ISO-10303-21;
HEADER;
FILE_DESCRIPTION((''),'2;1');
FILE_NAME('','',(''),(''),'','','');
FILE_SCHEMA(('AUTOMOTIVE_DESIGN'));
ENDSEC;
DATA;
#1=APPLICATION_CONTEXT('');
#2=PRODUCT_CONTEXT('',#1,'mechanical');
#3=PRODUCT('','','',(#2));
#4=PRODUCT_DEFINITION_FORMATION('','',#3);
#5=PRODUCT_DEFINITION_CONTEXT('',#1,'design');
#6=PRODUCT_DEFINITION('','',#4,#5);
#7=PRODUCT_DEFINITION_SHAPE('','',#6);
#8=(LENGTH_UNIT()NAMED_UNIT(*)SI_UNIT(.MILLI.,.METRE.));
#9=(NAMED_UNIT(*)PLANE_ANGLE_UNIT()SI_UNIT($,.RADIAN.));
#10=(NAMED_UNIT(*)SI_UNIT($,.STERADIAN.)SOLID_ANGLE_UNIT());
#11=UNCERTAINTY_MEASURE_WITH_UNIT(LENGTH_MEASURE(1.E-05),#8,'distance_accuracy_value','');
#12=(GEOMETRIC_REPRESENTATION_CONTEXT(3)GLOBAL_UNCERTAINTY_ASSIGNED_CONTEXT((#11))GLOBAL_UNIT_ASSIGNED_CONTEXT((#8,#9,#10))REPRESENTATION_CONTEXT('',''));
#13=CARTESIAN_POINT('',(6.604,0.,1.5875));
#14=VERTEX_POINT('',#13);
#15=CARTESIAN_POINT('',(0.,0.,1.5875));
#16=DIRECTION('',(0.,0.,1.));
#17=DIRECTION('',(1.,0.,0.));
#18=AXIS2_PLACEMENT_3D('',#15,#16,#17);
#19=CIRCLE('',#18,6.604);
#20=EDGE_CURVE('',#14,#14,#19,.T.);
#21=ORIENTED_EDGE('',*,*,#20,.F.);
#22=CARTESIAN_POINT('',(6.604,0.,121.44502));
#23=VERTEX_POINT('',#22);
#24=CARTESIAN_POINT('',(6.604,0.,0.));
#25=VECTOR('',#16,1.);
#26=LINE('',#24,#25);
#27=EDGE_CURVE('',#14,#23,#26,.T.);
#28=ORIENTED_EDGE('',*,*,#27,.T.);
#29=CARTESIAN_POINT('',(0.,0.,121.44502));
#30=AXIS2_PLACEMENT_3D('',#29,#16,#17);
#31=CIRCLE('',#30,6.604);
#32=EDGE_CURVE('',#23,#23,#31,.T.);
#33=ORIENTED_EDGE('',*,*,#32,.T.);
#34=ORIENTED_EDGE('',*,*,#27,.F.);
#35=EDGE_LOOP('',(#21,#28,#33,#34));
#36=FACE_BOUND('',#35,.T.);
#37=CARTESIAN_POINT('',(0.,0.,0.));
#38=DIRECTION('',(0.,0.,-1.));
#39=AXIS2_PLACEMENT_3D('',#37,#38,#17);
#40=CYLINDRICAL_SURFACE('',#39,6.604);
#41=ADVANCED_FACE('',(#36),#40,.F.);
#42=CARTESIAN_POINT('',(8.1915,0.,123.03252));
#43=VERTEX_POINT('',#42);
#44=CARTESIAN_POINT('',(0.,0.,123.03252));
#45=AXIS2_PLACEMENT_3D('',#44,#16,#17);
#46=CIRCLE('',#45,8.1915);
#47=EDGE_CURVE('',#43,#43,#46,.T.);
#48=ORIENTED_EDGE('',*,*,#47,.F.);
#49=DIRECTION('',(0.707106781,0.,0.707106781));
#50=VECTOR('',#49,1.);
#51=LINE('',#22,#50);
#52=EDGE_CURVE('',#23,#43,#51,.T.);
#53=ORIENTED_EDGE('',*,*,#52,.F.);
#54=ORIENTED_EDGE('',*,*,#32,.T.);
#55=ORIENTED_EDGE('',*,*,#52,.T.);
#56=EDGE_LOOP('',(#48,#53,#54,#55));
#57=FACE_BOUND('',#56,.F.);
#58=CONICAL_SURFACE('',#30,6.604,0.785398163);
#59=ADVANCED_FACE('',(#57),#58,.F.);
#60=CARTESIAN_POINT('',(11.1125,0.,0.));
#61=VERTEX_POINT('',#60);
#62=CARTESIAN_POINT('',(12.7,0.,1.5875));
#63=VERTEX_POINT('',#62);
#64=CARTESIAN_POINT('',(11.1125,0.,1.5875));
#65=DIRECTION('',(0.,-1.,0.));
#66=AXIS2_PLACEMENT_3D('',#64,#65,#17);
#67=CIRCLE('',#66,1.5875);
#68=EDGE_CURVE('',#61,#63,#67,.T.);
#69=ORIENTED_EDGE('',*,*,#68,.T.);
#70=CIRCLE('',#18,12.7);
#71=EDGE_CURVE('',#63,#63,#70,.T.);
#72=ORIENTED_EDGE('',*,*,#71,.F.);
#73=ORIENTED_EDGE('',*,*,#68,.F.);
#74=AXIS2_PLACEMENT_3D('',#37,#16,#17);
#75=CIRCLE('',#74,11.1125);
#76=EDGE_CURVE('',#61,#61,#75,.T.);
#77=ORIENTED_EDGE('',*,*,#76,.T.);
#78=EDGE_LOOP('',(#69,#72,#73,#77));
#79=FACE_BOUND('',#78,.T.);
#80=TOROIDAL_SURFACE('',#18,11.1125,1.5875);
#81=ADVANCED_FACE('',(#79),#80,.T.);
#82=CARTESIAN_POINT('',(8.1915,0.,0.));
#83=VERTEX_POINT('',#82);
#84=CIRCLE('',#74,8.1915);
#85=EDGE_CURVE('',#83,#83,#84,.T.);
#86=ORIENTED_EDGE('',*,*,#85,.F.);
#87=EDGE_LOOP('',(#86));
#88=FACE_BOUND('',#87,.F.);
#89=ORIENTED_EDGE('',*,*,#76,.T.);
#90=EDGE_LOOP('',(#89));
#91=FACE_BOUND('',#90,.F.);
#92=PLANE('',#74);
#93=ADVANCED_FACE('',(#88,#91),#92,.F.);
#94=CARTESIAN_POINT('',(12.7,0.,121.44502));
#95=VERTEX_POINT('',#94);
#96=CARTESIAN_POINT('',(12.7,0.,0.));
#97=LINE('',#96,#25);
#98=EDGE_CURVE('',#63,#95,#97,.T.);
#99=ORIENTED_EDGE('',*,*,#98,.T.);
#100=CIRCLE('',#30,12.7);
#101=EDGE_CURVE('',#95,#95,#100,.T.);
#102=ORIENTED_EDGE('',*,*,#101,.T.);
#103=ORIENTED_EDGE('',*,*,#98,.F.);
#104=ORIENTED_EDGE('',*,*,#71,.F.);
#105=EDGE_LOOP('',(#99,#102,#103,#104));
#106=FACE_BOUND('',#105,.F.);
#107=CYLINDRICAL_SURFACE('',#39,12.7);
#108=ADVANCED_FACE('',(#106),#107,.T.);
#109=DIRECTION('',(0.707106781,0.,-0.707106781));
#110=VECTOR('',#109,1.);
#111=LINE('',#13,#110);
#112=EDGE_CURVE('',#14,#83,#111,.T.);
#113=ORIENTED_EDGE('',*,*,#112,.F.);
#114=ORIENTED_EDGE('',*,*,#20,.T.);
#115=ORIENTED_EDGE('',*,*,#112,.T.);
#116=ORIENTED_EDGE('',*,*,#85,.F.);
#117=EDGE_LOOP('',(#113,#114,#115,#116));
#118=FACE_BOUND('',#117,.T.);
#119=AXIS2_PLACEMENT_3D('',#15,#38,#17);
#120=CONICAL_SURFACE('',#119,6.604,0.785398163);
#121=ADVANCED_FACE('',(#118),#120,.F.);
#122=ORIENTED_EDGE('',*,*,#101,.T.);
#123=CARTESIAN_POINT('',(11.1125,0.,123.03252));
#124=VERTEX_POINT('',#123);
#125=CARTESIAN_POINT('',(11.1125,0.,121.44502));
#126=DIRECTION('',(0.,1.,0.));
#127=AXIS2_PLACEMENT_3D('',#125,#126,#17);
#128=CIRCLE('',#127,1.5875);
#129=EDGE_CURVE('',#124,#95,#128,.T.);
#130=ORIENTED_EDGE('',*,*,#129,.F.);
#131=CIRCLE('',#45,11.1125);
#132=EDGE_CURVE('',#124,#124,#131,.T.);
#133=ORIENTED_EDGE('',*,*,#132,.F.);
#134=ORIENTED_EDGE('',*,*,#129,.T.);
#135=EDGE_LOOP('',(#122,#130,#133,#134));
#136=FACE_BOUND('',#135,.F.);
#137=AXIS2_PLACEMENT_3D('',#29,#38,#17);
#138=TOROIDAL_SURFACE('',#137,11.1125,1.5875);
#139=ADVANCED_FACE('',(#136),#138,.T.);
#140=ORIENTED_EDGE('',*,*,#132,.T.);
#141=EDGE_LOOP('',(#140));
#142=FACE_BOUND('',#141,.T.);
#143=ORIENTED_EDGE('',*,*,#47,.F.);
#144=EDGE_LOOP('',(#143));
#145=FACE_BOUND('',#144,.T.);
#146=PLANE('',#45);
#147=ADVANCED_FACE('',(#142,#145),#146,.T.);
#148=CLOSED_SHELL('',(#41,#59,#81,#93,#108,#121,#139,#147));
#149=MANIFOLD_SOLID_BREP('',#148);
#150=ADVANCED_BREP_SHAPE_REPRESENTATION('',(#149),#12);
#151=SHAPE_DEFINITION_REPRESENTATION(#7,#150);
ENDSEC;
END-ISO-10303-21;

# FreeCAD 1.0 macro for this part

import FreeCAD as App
import Part
import Sketcher
from FreeCAD import Vector
Q = App.Units.Quantity


def edges_at(feature, points):
    """Names of the edges that pass closest to the given points."""
    edges = feature.Shape.Edges
    near = lambda p: min(range(len(edges)), key=lambda i: edges[i].distToShape(Part.Vertex(*p))[0])
    return sorted({f"Edge{near(p) + 1}" for p in points})

doc = App.newDocument("Part")
body = doc.addObject("PartDesign::Body", "Body")

# Sketch on XY plane
sketch1 = doc.addObject("Sketcher::SketchObject", "Sketch")
body.addObject(sketch1)
sketch1.AttachmentSupport = (doc.XY_Plane, [""])
sketch1.MapMode = "FlatFace"
sketch1.addGeometry(Part.Circle(Vector(0, 0, 0), Vector(0, 0, 1), 13), False)
sketch1.addGeometry(Part.Circle(Vector(0, 0, 0), Vector(0, 0, 1), 7), False)
sketch1.addConstraint(Sketcher.Constraint("Coincident", 0, 3, -1, 1))
sketch1.addConstraint(Sketcher.Constraint("Coincident", 1, 3, -1, 1))
sketch1.addConstraint(Sketcher.Constraint("Diameter", 0, Q("1 in")))
sketch1.addConstraint(Sketcher.Constraint("Diameter", 1, Q("0.52 in")))
pad1 = doc.addObject("PartDesign::Pad", "Pad")
body.addObject(pad1)
pad1.Profile = sketch1
pad1.Length = Q("4.8438 in")
doc.recompute()

chamfer = doc.addObject("PartDesign::Chamfer", "Chamfer")
body.addObject(chamfer)
chamfer.Base = (pad1, edges_at(pad1, [(6.604, 0, 61.516), (-6.604, 0, 0), (-6.604, 0, 123.033)]))
chamfer.Size = Q("0.0625 in")
doc.recompute()

fillet = doc.addObject("PartDesign::Fillet", "Fillet")
body.addObject(fillet)
fillet.Base = (chamfer, edges_at(chamfer, [(12.7, 0, 61.516), (-12.7, 0, 0), (-12.7, 0, 123.033)]))
fillet.Radius = Q("0.0625 in")

doc.recompute()
